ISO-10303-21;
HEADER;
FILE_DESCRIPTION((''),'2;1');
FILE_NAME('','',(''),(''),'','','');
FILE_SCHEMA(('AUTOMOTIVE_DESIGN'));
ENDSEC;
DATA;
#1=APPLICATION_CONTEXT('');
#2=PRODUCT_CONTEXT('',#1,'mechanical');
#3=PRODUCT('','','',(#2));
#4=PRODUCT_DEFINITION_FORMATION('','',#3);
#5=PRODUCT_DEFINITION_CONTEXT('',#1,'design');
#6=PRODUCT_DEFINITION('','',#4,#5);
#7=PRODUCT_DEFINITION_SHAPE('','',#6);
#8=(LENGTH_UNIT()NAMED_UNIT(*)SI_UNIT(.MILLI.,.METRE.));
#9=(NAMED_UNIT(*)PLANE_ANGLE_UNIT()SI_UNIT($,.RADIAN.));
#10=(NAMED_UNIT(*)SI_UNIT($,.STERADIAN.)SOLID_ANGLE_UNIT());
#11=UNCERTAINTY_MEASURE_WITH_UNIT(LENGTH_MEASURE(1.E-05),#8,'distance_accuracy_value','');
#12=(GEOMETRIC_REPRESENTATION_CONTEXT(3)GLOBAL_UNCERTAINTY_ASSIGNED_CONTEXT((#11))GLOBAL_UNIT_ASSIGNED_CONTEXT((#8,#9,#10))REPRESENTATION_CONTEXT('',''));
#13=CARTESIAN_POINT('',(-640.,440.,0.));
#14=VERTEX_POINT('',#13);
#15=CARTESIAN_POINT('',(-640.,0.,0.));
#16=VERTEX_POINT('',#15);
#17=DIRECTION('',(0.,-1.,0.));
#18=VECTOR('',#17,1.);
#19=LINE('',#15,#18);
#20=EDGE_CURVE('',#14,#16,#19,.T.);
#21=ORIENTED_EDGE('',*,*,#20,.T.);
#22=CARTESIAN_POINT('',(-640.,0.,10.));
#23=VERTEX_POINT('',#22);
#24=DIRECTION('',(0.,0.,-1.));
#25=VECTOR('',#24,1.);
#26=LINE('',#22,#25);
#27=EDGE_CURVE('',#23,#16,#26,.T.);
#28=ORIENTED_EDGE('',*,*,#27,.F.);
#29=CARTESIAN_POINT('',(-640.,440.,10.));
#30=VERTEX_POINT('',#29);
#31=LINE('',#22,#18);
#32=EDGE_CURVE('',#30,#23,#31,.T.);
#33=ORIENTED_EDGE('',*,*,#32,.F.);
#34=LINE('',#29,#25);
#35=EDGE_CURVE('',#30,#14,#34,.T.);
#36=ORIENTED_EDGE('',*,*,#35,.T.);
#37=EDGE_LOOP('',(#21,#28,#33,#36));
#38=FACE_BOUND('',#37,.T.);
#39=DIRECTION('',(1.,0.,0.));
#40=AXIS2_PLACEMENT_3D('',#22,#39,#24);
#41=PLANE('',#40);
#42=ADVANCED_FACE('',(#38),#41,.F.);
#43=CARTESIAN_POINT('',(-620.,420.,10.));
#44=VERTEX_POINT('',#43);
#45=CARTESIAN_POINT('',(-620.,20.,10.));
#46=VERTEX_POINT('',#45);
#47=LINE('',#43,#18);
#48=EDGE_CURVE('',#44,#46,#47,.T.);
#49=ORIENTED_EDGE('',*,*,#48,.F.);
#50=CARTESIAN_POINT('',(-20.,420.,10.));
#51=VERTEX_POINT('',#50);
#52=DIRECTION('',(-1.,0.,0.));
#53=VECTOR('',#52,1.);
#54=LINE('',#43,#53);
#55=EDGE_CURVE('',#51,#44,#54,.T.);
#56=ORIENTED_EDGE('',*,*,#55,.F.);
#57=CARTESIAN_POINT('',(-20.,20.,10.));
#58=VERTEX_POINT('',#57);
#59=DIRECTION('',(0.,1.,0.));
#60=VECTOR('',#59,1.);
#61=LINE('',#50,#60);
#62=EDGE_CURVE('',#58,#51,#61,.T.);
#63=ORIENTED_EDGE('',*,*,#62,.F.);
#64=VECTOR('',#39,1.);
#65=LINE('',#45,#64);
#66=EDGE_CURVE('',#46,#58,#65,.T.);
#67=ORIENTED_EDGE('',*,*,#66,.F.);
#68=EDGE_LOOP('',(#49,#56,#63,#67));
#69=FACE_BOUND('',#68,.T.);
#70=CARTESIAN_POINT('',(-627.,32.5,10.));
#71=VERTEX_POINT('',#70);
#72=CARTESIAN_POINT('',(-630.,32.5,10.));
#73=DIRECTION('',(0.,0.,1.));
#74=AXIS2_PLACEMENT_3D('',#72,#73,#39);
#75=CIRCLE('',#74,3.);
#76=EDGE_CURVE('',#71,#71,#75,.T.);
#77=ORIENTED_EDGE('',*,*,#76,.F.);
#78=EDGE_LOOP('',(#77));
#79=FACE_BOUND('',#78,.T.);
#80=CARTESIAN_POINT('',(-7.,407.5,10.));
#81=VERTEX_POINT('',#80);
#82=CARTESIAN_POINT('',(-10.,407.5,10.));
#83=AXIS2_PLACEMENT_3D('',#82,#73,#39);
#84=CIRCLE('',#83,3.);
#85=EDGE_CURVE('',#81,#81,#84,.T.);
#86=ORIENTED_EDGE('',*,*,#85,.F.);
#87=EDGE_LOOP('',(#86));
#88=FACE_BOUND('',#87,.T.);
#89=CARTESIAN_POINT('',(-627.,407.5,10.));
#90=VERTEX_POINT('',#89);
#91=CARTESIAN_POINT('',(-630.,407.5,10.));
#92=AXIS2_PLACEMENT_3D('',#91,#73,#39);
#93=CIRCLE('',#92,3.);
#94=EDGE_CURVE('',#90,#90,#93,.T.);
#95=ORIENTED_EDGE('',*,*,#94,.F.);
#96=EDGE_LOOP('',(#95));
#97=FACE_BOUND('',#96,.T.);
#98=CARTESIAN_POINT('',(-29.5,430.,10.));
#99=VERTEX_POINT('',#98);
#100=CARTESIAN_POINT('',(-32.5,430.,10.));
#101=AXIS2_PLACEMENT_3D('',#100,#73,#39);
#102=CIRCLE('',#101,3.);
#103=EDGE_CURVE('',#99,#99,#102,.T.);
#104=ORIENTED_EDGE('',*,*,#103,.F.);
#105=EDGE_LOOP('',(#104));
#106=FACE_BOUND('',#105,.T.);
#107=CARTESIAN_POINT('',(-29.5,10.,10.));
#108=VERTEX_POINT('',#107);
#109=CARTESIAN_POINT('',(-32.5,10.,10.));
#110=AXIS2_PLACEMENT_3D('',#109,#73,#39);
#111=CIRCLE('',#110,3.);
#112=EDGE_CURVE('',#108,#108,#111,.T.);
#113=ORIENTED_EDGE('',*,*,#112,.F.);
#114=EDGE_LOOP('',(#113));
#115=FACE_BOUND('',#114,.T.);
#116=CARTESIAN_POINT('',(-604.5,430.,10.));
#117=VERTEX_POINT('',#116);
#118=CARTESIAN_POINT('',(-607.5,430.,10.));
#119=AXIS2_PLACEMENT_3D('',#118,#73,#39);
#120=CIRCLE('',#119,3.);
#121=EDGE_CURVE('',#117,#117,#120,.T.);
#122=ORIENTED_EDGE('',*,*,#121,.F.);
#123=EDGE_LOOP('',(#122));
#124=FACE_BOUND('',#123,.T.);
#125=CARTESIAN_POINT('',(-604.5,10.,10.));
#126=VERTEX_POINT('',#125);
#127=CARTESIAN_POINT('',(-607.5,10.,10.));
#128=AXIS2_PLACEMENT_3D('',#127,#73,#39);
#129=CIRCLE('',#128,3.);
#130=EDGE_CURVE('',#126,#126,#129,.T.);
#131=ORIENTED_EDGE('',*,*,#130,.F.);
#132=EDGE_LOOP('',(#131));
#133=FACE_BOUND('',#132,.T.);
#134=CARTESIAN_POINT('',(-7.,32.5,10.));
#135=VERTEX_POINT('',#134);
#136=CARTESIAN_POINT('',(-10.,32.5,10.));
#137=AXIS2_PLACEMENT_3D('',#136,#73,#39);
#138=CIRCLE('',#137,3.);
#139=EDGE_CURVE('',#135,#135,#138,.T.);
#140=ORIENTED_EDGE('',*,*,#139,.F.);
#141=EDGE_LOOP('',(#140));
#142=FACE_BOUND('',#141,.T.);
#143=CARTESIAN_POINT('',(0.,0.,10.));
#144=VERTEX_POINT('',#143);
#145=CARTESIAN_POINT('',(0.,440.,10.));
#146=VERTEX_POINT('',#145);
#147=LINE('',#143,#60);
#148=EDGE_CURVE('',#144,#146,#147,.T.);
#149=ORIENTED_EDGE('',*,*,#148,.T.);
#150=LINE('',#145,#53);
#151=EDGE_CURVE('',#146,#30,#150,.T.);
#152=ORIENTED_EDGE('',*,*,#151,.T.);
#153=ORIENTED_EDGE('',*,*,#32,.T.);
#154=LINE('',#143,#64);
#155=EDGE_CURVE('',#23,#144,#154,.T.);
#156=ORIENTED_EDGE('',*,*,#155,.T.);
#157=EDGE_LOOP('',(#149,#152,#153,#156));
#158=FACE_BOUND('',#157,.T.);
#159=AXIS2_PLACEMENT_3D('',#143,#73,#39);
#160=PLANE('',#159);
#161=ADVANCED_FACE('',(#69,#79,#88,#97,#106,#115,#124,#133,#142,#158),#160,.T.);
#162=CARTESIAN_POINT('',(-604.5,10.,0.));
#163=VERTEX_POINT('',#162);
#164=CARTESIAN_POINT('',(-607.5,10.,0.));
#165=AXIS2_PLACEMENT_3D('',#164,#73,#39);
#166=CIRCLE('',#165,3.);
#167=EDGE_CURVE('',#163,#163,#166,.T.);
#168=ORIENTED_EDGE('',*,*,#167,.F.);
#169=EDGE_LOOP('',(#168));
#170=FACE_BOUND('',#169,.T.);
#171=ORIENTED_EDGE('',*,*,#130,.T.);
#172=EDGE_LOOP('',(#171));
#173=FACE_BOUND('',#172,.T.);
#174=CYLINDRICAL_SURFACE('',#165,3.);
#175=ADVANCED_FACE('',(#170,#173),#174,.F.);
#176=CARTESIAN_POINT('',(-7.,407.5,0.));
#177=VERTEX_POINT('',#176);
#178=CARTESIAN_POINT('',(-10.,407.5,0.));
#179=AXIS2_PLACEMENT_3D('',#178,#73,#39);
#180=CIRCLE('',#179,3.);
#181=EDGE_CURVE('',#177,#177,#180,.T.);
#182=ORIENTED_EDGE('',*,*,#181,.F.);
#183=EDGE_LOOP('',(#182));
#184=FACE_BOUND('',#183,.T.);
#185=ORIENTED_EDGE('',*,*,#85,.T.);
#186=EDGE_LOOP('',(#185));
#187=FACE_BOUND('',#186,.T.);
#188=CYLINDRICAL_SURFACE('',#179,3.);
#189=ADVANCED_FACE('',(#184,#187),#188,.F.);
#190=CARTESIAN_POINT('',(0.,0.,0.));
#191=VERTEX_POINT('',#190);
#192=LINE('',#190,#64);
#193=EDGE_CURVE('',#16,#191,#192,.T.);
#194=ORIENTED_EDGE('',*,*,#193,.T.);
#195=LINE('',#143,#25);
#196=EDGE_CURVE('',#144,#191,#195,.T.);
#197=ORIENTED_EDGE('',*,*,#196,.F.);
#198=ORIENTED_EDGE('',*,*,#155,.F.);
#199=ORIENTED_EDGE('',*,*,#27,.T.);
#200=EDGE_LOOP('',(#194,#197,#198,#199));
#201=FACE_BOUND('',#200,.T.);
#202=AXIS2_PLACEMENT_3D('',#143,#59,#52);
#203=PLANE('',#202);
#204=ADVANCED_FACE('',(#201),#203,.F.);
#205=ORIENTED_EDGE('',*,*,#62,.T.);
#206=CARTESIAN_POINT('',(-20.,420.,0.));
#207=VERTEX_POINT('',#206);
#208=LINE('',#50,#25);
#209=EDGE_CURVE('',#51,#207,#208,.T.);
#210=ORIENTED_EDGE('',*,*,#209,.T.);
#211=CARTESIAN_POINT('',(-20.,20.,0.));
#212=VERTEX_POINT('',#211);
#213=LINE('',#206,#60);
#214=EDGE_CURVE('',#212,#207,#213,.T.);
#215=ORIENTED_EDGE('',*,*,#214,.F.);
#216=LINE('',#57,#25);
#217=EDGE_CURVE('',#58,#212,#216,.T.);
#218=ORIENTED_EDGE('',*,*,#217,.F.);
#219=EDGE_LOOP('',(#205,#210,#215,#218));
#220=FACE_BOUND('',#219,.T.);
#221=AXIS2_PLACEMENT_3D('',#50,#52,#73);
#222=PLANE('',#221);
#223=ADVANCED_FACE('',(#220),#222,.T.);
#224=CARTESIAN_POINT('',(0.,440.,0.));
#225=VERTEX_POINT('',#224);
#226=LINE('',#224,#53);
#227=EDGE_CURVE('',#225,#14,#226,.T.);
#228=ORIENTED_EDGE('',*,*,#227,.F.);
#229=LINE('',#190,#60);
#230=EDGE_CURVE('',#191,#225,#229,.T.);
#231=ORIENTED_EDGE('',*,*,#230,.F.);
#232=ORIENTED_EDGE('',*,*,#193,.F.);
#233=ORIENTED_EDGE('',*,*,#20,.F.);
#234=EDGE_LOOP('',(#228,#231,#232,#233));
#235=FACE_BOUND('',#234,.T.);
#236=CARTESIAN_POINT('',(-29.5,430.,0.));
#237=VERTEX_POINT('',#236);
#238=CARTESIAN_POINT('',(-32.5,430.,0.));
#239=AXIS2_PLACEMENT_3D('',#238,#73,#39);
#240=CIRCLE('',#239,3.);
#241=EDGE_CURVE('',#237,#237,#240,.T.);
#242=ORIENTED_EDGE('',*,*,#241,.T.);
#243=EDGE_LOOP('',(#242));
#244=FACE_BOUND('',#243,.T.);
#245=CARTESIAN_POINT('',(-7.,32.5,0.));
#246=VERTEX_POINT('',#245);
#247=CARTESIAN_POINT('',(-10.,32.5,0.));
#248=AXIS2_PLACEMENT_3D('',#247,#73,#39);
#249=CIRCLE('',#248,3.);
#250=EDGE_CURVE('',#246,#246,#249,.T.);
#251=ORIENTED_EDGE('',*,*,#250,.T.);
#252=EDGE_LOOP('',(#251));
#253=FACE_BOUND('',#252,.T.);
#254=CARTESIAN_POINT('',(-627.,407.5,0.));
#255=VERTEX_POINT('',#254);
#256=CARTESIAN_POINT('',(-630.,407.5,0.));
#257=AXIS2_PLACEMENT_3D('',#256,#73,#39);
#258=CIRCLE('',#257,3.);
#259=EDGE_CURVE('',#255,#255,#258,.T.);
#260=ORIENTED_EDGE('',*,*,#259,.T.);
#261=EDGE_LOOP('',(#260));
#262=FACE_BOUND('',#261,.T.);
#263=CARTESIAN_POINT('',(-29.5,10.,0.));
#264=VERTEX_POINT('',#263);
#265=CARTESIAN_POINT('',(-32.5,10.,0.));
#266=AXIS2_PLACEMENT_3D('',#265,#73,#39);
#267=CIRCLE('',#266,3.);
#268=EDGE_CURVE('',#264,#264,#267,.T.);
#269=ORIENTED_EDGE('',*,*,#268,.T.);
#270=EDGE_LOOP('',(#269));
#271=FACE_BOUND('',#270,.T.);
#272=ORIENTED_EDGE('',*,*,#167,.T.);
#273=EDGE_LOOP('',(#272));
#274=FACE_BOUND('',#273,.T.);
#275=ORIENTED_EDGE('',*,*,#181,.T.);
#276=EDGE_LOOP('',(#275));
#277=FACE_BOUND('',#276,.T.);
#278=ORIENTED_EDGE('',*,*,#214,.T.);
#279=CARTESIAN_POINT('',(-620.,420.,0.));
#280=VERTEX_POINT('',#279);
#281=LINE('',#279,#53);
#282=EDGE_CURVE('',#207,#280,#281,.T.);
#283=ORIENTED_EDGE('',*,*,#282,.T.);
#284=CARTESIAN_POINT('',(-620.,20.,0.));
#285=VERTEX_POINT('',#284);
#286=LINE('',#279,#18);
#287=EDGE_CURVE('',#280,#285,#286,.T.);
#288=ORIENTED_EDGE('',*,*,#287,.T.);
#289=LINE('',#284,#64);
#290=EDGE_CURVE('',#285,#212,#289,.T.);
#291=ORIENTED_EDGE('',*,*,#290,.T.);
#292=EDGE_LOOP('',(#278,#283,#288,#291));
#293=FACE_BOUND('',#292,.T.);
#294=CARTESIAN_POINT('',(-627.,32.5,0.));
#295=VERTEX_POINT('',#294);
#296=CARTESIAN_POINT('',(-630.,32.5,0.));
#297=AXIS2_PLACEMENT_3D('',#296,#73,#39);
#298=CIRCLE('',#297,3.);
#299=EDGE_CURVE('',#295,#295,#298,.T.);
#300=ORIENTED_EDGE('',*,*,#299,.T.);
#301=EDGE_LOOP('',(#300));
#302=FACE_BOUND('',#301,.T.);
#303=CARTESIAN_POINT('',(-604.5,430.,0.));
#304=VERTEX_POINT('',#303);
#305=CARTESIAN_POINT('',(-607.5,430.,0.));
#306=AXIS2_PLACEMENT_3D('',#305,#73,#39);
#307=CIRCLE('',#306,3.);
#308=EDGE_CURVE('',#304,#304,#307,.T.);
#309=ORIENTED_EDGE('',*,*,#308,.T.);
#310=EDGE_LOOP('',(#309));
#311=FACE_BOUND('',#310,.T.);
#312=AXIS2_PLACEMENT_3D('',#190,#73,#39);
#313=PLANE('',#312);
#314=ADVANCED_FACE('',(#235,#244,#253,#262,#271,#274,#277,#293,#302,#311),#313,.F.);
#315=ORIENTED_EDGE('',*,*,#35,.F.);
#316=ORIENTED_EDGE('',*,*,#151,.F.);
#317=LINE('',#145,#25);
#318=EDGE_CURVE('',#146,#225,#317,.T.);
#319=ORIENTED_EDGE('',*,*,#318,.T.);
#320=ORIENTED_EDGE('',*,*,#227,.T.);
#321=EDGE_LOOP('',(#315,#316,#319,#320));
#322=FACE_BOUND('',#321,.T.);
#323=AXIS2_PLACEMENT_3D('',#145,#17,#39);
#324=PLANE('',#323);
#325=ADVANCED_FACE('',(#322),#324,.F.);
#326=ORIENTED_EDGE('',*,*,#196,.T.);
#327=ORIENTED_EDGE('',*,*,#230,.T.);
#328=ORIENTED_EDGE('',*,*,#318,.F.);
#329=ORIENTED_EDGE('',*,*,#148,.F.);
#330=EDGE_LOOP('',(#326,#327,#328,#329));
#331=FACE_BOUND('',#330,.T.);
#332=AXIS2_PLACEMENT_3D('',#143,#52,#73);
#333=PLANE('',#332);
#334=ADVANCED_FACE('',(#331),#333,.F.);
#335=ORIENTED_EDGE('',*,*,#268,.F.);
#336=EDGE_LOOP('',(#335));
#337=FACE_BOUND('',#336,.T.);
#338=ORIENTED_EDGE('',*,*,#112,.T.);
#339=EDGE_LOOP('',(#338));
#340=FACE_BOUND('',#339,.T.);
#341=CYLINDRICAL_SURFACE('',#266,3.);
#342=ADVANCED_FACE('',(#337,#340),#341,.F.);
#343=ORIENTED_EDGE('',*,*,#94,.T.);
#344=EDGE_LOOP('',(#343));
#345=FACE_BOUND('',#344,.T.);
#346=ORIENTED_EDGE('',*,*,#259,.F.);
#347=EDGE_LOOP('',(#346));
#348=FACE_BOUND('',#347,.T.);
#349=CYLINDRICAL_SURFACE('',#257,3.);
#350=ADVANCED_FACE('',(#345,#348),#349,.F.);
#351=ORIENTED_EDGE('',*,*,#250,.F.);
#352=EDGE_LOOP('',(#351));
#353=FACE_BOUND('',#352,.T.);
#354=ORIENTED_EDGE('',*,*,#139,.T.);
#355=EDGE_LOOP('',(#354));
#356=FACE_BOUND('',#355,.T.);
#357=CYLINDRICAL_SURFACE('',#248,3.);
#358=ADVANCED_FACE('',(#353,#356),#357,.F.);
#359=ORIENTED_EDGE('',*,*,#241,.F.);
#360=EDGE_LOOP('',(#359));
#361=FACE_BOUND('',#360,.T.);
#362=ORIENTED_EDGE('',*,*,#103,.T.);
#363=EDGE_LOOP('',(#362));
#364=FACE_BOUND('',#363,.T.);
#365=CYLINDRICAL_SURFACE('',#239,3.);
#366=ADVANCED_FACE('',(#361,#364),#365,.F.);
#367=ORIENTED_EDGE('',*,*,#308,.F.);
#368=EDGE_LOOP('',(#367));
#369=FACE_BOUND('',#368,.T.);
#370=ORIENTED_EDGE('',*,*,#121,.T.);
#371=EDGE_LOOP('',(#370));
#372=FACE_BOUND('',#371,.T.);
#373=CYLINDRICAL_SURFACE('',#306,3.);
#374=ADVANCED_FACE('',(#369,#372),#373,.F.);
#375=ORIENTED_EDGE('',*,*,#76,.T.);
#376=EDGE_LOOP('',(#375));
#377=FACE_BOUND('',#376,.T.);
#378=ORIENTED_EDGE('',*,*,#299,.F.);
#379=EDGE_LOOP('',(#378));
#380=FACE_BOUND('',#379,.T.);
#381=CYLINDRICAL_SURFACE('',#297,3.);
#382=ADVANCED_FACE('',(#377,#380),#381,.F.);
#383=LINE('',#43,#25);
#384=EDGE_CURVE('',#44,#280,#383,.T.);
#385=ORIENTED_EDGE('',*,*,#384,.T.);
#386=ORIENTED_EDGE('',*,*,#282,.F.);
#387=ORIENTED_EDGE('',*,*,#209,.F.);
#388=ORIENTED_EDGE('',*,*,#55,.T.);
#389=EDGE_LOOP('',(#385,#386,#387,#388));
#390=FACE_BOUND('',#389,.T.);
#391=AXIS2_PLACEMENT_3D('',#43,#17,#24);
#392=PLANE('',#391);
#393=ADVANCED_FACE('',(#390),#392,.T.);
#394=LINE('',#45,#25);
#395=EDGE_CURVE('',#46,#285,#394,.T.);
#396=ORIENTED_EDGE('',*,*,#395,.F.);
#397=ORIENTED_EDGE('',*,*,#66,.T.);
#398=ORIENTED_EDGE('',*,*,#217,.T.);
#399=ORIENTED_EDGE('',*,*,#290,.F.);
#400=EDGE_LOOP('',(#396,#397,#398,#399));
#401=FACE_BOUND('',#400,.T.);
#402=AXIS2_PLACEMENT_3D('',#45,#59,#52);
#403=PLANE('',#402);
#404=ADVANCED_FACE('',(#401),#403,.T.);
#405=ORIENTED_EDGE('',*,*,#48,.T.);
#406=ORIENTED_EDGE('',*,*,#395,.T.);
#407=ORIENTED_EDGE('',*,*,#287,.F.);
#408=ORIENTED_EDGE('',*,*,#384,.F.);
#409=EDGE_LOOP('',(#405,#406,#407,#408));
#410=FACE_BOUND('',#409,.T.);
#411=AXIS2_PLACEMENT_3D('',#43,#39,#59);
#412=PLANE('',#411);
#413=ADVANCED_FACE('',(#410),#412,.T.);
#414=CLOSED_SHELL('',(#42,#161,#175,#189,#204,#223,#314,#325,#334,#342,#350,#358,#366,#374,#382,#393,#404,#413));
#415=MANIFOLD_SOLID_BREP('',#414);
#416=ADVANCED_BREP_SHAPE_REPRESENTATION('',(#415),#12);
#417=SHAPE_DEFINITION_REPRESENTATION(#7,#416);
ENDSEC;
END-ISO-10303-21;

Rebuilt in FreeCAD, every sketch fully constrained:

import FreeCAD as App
import Part
import Sketcher

V = App.Vector

doc = App.newDocument("Part")
params = doc.addObject("Spreadsheet::Sheet", "Params")
for row, (alias, value) in enumerate([
    ("sketch1_width", "640 mm"),
    ("sketch1_width2", "600 mm"),
    ("sketch1_height", "440 mm"),
    ("sketch1_height2", "400 mm"),
    ("pad1_length", "10 mm"),
    ("sketch2_diameter", "6 mm"),
], start=1):
    params.set(f"A{row}", alias)
    params.set(f"B{row}", "=" + value)
    params.setAlias(f"B{row}", alias)

body = doc.addObject("PartDesign::Body", "Body")

# Sketch on XY plane
sketch1 = body.newObject("Sketcher::SketchObject", "Sketch")
sketch1.AttachmentSupport = (doc.getObject("XY_Plane"), [""])
sketch1.MapMode = "FlatFace"
sketch1.addGeometry([
    Part.LineSegment(V(-640, 440, 0), V(-640, 0, 0)),  # 0
    Part.LineSegment(V(-640, 0, 0), V(0, 0, 0)),  # 1
    Part.LineSegment(V(0, 0, 0), V(0, 440, 0)),  # 2
    Part.LineSegment(V(0, 440, 0), V(-640, 440, 0)),  # 3
    Part.LineSegment(V(-20, 20, 0), V(-620, 20, 0)),  # 4
    Part.LineSegment(V(-620, 20, 0), V(-620, 420, 0)),  # 5
    Part.LineSegment(V(-620, 420, 0), V(-20, 420, 0)),  # 6
    Part.LineSegment(V(-20, 420, 0), V(-20, 20, 0)),  # 7
], False)
sketch1.addConstraint([
    Sketcher.Constraint("Coincident", 0, 2, 1, 1),
    Sketcher.Constraint("Coincident", 1, 2, 2, 1),
    Sketcher.Constraint("Coincident", 2, 2, 3, 1),
    Sketcher.Constraint("Coincident", 3, 2, 0, 1),
    Sketcher.Constraint("Coincident", 4, 2, 5, 1),
    Sketcher.Constraint("Coincident", 5, 2, 6, 1),
    Sketcher.Constraint("Coincident", 6, 2, 7, 1),
    Sketcher.Constraint("Coincident", 7, 2, 4, 1),
    Sketcher.Constraint("Vertical", 0),
    Sketcher.Constraint("Horizontal", 1),
    Sketcher.Constraint("Vertical", 2),
    Sketcher.Constraint("Horizontal", 3),
    Sketcher.Constraint("Horizontal", 4),
    Sketcher.Constraint("Vertical", 5),
    Sketcher.Constraint("Horizontal", 6),
    Sketcher.Constraint("Vertical", 7),
    Sketcher.Constraint("Coincident", 1, 2, -1, 1),
    Sketcher.Constraint("DistanceX", 1, 1, 1, 2, 640.0),
    Sketcher.Constraint("DistanceX", 4, 2, 4, 1, 600.0),
    Sketcher.Constraint("DistanceY", 0, 2, 0, 1, 440.0),
    Sketcher.Constraint("DistanceY", 5, 1, 5, 2, 400.0),
    Sketcher.Constraint("DistanceX", 4, 2, -1, 1, 620.0),
    Sketcher.Constraint("DistanceY", -1, 1, 4, 2, 20.0),
])
sketch1.setExpression("Constraints[17]", "Params.sketch1_width")
sketch1.setExpression("Constraints[18]", "Params.sketch1_width2")
sketch1.setExpression("Constraints[19]", "Params.sketch1_height")
sketch1.setExpression("Constraints[20]", "Params.sketch1_height2")
pad1 = body.newObject("PartDesign::Pad", "Pad")
pad1.Profile = sketch1
pad1.setExpression("Length", "Params.pad1_length")

# Sketch on XY plane
sketch2 = body.newObject("Sketcher::SketchObject", "Sketch001")
sketch2.AttachmentSupport = (doc.getObject("XY_Plane"), [""])
sketch2.MapMode = "FlatFace"
sketch2.AttachmentOffset = App.Placement(V(0, 0, 10), App.Rotation())
sketch2.addGeometry([
    Part.Circle(V(-32.5, 430, 0), V(0, 0, 1), 3),  # 0
    Part.Circle(V(-10, 407.5, 0), V(0, 0, 1), 3),  # 1
    Part.Circle(V(-607.5, 430, 0), V(0, 0, 1), 3),  # 2
    Part.Circle(V(-630, 407.5, 0), V(0, 0, 1), 3),  # 3
    Part.Circle(V(-630, 32.5, 0), V(0, 0, 1), 3),  # 4
    Part.Circle(V(-607.5, 10, 0), V(0, 0, 1), 3),  # 5
    Part.Circle(V(-32.5, 10, 0), V(0, 0, 1), 3),  # 6
    Part.Circle(V(-10, 32.5, 0), V(0, 0, 1), 3),  # 7
], False)
sketch2.addConstraint([
    Sketcher.Constraint("Equal", 0, 1),
    Sketcher.Constraint("Equal", 1, 2),
    Sketcher.Constraint("Equal", 2, 3),
    Sketcher.Constraint("Equal", 3, 4),
    Sketcher.Constraint("Equal", 4, 5),
    Sketcher.Constraint("Equal", 5, 6),
    Sketcher.Constraint("Equal", 6, 7),
    Sketcher.Constraint("Horizontal", 0, 3, 2, 3),
    Sketcher.Constraint("Horizontal", 1, 3, 3, 3),
    Sketcher.Constraint("Horizontal", 5, 3, 6, 3),
    Sketcher.Constraint("Horizontal", 4, 3, 7, 3),
    Sketcher.Constraint("Vertical", 3, 3, 4, 3),
    Sketcher.Constraint("Vertical", 2, 3, 5, 3),
    Sketcher.Constraint("Vertical", 0, 3, 6, 3),
    Sketcher.Constraint("Vertical", 1, 3, 7, 3),
    Sketcher.Constraint("Diameter", 0, 6.0),
    Sketcher.Constraint("DistanceY", -1, 1, 0, 3, 430.0),
    Sketcher.Constraint("DistanceX", 1, 3, -1, 1, 10.0),
    Sketcher.Constraint("DistanceX", 3, 3, -1, 1, 630.0),
    Sketcher.Constraint("DistanceY", -1, 1, 5, 3, 10.0),
    Sketcher.Constraint("DistanceX", 2, 3, 0, 3, 575.0),
    Sketcher.Constraint("DistanceY", 4, 3, 3, 3, 375.0),
    Sketcher.Constraint("DistanceX", 0, 3, -1, 1, 32.5),
    Sketcher.Constraint("DistanceY", -1, 1, 1, 3, 407.5),
])
sketch2.setExpression("Constraints[15]", "Params.sketch2_diameter")
pocket1 = body.newObject("PartDesign::Pocket", "Pocket")
pocket1.Profile = sketch2
pocket1.Type = "ThroughAll"

doc.recompute()
